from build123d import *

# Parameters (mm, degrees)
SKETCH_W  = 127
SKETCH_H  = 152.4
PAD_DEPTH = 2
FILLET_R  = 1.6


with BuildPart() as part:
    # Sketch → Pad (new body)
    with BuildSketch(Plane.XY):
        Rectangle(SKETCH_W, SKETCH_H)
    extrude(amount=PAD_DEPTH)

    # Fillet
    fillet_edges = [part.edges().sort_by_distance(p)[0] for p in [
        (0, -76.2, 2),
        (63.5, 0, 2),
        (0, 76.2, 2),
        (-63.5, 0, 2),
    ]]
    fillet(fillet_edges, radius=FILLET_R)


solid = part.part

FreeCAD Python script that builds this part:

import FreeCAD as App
import Part
import Sketcher
from FreeCAD import Vector


def edges_at(feature, points):
    """Names of the edges that pass closest to the given points."""
    edges = feature.Shape.Edges
    near = lambda p: min(range(len(edges)), key=lambda i: edges[i].distToShape(Part.Vertex(*p))[0])
    return sorted({f"Edge{near(p) + 1}" for p in points})


def add_polygon(sketch, points):
    """Adds a closed chain of lines whose ends are joined by coincident constraints."""
    first, n = sketch.GeometryCount, len(points)
    for a, b in zip(points, points[1:] + points[:1]):
        sketch.addGeometry(Part.LineSegment(App.Vector(*a, 0), App.Vector(*b, 0)), False)
    for i in range(n):
        sketch.addConstraint(Sketcher.Constraint("Coincident", first + i, 2, first + (i + 1) % n, 1))

doc = App.newDocument("Part")
body = doc.addObject("PartDesign::Body", "Body")

# Sketch on XY plane
sketch1 = doc.addObject("Sketcher::SketchObject", "Sketch")
body.addObject(sketch1)
sketch1.AttachmentSupport = (doc.XY_Plane, [""])
sketch1.MapMode = "FlatFace"
add_polygon(sketch1, [(-64, 76), (-64, -76), (64, -76), (64, 76)])  # lines 0-3
sketch1.addConstraint([
    Sketcher.Constraint("Vertical", 0),
    Sketcher.Constraint("Horizontal", 1),
    Sketcher.Constraint("Vertical", 2),
    Sketcher.Constraint("Horizontal", 3),
    Sketcher.Constraint("Symmetric", 0, 2, 2, 2, -1, 1),
    Sketcher.Constraint("DistanceX", 1, 1, 1, 2, 127.0),
    Sketcher.Constraint("DistanceY", 0, 2, 0, 1, 152.4),
])
pad1 = doc.addObject("PartDesign::Pad", "Pad")
body.addObject(pad1)
pad1.Profile = sketch1
pad1.Length = 2
doc.recompute()

fillet = doc.addObject("PartDesign::Fillet", "Fillet")
body.addObject(fillet)
fillet.Base = (pad1, edges_at(pad1, [
    (0, -76.2, 2),
    (63.5, 0, 2),
    (0, 76.2, 2),
    (-63.5, 0, 2),
]))
fillet.Radius = 1.6

doc.recompute()
